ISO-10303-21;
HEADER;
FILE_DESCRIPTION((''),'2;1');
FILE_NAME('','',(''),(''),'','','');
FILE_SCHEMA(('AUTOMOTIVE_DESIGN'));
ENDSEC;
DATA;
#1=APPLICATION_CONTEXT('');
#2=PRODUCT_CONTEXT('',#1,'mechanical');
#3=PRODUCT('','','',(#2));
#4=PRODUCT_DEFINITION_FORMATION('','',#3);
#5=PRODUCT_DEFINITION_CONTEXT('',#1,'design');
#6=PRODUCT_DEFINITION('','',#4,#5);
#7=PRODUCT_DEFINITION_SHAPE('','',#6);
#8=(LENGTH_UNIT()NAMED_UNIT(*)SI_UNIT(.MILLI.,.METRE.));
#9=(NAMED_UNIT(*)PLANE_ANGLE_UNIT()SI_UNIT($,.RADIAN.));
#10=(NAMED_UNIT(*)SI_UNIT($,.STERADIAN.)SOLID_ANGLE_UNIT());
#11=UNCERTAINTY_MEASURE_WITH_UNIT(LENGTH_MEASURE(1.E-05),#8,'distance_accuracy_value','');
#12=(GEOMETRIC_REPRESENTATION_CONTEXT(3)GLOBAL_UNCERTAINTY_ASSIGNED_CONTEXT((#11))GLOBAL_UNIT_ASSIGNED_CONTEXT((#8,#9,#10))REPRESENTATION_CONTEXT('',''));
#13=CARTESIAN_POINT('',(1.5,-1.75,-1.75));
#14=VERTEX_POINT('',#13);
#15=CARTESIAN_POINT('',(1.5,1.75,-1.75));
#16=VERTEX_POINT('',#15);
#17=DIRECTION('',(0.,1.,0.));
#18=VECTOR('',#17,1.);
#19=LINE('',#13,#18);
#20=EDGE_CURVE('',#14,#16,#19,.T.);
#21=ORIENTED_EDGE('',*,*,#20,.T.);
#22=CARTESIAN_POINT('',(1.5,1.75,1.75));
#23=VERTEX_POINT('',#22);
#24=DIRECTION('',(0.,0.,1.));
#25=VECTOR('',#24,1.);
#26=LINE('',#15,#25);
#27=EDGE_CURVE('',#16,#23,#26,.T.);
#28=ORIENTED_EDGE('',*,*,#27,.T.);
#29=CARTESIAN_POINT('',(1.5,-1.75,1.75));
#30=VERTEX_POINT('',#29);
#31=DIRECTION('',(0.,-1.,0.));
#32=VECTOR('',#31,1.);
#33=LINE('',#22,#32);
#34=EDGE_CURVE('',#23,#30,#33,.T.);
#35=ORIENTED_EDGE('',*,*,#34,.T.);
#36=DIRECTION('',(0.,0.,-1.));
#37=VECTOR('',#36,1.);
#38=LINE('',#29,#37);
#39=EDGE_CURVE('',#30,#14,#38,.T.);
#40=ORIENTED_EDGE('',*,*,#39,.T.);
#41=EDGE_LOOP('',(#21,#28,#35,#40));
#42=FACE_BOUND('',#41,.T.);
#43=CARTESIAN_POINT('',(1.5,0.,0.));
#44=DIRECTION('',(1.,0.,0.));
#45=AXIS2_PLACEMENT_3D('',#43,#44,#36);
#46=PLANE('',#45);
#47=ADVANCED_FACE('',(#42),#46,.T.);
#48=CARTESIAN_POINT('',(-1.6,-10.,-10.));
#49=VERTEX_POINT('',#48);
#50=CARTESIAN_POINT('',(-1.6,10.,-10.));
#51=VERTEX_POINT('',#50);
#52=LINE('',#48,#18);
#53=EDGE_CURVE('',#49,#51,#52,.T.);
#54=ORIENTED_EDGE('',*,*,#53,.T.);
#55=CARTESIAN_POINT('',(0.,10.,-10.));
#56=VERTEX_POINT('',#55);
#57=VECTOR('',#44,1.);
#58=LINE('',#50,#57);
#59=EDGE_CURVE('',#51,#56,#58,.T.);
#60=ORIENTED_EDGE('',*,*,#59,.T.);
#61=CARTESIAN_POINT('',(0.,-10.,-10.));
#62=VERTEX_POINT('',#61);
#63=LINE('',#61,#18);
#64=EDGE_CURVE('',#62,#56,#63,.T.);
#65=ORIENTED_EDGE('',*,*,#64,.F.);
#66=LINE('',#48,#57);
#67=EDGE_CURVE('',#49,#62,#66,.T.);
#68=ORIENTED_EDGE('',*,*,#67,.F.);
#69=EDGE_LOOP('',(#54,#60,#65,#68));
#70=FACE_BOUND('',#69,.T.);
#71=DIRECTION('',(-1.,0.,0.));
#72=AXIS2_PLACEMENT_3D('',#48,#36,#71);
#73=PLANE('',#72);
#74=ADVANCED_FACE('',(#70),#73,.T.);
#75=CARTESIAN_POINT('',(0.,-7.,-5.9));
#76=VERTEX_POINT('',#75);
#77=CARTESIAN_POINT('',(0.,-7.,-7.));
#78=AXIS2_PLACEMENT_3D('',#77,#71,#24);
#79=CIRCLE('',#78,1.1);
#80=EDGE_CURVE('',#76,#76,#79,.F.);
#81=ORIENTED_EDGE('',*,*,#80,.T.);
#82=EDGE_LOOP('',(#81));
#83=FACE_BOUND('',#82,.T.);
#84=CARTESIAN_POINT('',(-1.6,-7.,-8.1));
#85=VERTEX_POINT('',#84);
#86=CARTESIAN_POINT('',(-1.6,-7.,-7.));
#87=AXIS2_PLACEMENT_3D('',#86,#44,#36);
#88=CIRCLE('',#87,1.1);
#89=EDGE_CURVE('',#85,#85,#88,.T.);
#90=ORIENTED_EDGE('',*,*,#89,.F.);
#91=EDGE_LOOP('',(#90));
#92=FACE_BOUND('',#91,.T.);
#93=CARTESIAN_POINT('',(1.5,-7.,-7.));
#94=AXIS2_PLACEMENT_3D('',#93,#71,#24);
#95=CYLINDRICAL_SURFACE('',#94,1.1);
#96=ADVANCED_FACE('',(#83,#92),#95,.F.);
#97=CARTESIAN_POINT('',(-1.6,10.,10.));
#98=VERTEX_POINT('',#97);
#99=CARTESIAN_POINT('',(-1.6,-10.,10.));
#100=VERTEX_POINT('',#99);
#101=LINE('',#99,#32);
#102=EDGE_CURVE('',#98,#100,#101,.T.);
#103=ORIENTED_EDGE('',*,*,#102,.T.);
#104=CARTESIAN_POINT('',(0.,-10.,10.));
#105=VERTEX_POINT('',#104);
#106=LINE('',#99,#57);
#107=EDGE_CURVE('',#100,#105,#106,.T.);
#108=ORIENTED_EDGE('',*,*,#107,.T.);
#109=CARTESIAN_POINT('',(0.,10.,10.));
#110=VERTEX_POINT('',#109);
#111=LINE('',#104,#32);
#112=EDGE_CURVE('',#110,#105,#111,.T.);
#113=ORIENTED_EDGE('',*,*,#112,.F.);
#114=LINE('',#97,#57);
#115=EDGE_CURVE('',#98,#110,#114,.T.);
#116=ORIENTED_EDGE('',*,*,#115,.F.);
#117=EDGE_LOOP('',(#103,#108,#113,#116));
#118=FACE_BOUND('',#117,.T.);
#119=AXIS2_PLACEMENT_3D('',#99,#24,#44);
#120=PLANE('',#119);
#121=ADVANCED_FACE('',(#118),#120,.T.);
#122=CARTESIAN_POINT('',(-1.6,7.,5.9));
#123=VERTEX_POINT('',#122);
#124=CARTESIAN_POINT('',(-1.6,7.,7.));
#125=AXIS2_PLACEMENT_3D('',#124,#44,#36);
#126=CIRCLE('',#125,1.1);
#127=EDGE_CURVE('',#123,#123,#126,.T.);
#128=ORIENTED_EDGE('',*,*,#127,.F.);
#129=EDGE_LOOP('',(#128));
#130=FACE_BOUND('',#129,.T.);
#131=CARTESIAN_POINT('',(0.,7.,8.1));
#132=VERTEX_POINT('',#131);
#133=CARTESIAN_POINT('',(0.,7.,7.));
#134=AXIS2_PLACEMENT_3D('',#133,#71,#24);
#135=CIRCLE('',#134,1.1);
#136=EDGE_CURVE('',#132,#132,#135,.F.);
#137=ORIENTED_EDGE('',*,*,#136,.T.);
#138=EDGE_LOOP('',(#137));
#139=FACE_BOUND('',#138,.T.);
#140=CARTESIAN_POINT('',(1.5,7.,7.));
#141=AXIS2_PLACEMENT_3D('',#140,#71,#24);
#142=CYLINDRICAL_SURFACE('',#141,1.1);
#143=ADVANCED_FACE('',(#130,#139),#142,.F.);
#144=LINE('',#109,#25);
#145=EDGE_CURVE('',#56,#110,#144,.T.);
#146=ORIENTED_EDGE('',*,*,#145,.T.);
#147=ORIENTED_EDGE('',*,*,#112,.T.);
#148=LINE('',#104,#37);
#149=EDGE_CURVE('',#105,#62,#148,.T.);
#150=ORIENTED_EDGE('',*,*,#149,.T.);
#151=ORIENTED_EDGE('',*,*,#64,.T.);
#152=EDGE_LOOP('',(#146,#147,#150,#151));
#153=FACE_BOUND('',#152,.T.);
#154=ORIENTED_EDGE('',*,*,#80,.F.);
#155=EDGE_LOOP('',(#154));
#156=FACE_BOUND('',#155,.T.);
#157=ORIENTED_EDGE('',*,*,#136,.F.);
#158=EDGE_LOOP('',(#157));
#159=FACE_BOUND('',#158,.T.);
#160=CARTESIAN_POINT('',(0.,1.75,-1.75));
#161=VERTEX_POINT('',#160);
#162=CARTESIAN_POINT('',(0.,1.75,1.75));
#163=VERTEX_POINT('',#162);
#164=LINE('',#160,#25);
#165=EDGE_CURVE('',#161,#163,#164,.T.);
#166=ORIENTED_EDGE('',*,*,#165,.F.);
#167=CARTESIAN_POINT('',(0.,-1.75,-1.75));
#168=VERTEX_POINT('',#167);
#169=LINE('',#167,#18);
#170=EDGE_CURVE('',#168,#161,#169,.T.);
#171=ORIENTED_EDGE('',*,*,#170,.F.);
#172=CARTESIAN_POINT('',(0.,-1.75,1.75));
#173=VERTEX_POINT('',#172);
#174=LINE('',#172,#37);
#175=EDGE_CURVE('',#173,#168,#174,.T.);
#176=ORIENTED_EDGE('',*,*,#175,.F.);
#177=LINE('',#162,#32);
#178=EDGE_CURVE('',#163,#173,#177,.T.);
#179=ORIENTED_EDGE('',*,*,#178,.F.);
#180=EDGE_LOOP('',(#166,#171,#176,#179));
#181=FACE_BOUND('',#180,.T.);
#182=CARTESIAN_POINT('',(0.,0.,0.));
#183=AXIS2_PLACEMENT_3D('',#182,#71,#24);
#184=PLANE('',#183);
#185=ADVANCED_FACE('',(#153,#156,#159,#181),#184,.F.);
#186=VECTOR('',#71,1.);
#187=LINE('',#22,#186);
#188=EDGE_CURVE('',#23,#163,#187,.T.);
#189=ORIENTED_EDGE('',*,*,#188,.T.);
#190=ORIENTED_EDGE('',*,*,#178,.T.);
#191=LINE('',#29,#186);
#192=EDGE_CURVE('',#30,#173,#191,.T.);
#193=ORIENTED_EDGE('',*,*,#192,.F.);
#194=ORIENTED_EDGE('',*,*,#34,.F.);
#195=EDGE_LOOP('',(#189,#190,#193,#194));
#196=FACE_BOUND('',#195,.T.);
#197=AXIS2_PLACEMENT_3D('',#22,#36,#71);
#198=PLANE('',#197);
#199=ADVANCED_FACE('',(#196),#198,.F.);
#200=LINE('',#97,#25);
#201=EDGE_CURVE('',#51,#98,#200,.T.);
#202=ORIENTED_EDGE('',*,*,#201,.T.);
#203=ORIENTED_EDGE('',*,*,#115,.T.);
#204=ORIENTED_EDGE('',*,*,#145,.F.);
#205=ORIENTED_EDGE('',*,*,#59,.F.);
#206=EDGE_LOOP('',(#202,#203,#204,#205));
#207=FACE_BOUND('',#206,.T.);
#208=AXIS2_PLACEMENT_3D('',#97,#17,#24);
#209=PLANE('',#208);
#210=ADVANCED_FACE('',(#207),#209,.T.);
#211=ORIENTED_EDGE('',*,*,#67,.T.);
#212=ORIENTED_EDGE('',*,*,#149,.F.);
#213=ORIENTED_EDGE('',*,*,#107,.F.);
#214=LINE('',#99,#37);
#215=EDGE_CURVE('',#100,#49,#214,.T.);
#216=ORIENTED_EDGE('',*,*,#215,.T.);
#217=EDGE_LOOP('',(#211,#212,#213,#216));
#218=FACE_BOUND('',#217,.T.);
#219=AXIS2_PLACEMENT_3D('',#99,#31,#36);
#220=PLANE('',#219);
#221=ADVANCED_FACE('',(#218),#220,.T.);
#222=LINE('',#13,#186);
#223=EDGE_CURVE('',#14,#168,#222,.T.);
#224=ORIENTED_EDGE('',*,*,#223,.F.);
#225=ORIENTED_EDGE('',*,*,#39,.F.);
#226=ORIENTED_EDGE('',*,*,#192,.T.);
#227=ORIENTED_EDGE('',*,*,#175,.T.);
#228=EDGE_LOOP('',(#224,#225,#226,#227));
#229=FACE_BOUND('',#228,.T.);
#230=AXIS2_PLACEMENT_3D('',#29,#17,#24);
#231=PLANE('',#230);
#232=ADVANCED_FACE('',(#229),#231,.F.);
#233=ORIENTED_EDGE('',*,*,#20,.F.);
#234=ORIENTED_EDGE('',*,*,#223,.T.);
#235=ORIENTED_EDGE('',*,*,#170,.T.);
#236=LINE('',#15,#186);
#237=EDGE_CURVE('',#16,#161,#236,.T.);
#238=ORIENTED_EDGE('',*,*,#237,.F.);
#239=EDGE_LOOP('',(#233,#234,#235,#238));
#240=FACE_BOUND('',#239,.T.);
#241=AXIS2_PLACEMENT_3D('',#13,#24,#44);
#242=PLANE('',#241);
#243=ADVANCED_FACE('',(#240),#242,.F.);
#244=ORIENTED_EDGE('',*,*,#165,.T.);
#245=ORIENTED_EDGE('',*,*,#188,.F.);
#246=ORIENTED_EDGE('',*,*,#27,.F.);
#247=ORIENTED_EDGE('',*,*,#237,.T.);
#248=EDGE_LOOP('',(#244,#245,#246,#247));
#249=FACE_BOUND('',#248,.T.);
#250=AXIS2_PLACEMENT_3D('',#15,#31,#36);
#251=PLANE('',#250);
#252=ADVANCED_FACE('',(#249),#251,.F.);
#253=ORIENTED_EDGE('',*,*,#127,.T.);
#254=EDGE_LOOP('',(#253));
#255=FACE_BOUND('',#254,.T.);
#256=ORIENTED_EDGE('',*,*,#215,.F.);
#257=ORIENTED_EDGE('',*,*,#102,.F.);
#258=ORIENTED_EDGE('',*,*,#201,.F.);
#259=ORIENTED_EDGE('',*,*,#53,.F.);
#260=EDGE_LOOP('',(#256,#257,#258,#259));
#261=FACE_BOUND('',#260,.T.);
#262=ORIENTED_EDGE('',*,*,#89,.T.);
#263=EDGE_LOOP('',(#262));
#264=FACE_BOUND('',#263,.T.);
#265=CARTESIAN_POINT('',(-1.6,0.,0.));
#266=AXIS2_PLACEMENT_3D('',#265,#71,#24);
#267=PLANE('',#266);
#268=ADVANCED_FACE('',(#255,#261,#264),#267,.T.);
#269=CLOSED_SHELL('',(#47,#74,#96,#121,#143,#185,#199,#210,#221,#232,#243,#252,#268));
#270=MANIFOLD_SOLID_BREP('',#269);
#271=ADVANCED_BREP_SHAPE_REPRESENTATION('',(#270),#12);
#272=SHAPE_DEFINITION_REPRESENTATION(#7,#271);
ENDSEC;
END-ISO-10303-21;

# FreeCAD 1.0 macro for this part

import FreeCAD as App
import Part
import Sketcher
Q = App.Units.Quantity

doc = App.newDocument("Part")
body = doc.addObject("PartDesign::Body", "Body")

sketch1 = body.newObject("Sketcher::SketchObject", "Sketch")
sketch1.AttachmentSupport = (doc.getObject("YZ_Plane"), [""])
sketch1.MapMode = "FlatFace"
sketch1.addGeometry(Part.LineSegment(App.Vector(10, 10, 0), App.Vector(-10, 10, 0)), False)
sketch1.addGeometry(Part.LineSegment(App.Vector(-10, 10, 0), App.Vector(-10, -10, 0)), False)
sketch1.addGeometry(Part.LineSegment(App.Vector(-10, -10, 0), App.Vector(10, -10, 0)), False)
sketch1.addGeometry(Part.LineSegment(App.Vector(10, -10, 0), App.Vector(10, 10, 0)), False)
sketch1.addConstraint(Sketcher.Constraint("Coincident", 0, 2, 1, 1))
sketch1.addConstraint(Sketcher.Constraint("Coincident", 1, 2, 2, 1))
sketch1.addConstraint(Sketcher.Constraint("Coincident", 2, 2, 3, 1))
sketch1.addConstraint(Sketcher.Constraint("Coincident", 3, 2, 0, 1))
sketch1.addConstraint(Sketcher.Constraint("Horizontal", 0))
sketch1.addConstraint(Sketcher.Constraint("Vertical", 1))
sketch1.addConstraint(Sketcher.Constraint("Horizontal", 2))
sketch1.addConstraint(Sketcher.Constraint("Vertical", 3))
sketch1.addConstraint(Sketcher.Constraint("Symmetric", 0, 2, 2, 2, -1, 1))
sketch1.addConstraint(Sketcher.Constraint("Equal", 2, 1))
sketch1.addConstraint(Sketcher.Constraint("DistanceX", 0, 2, 0, 1, Q("20 mm")))
pad1 = body.newObject("PartDesign::Pad", "Pad")
pad1.Profile = sketch1
pad1.Length = 1.6
pad1.Reversed = True

sketch2 = body.newObject("Sketcher::SketchObject", "Sketch001")
sketch2.AttachmentSupport = (doc.getObject("YZ_Plane"), [""])
sketch2.MapMode = "FlatFace"
sketch2.addGeometry(Part.LineSegment(App.Vector(1.8, 1.8, 0), App.Vector(-1.8, 1.8, 0)), False)
sketch2.addGeometry(Part.LineSegment(App.Vector(-1.8, 1.8, 0), App.Vector(-1.8, -1.8, 0)), False)
sketch2.addGeometry(Part.LineSegment(App.Vector(-1.8, -1.8, 0), App.Vector(1.8, -1.8, 0)), False)
sketch2.addGeometry(Part.LineSegment(App.Vector(1.8, -1.8, 0), App.Vector(1.8, 1.8, 0)), False)
sketch2.addConstraint(Sketcher.Constraint("Coincident", 0, 2, 1, 1))
sketch2.addConstraint(Sketcher.Constraint("Coincident", 1, 2, 2, 1))
sketch2.addConstraint(Sketcher.Constraint("Coincident", 2, 2, 3, 1))
sketch2.addConstraint(Sketcher.Constraint("Coincident", 3, 2, 0, 1))
sketch2.addConstraint(Sketcher.Constraint("Horizontal", 0))
sketch2.addConstraint(Sketcher.Constraint("Vertical", 1))
sketch2.addConstraint(Sketcher.Constraint("Horizontal", 2))
sketch2.addConstraint(Sketcher.Constraint("Vertical", 3))
sketch2.addConstraint(Sketcher.Constraint("Symmetric", 0, 2, 2, 2, -1, 1))
sketch2.addConstraint(Sketcher.Constraint("Equal", 2, 1))
sketch2.addConstraint(Sketcher.Constraint("DistanceX", 0, 2, 0, 1, Q("3.5 mm")))
pad2 = body.newObject("PartDesign::Pad", "Pad001")
pad2.Profile = sketch2
pad2.Length = 1.5

sketch3 = body.newObject("Sketcher::SketchObject", "Sketch002")
sketch3.AttachmentSupport = (doc.getObject("YZ_Plane"), [""])
sketch3.MapMode = "FlatFace"
sketch3.addGeometry(Part.Circle(App.Vector(-7, -7, 0), App.Vector(0, 0, 1), 1.1), False)
sketch3.addGeometry(Part.Circle(App.Vector(7, 7, 0), App.Vector(0, 0, 1), 1.1), False)
sketch3.addConstraint(Sketcher.Constraint("Equal", 0, 1))
sketch3.addConstraint(Sketcher.Constraint("Symmetric", 0, 3, 1, 3, -1, 1))
sketch3.addConstraint(Sketcher.Constraint("Diameter", 0, Q("2.2 mm")))
sketch3.addConstraint(Sketcher.Constraint("DistanceX", 0, 3, -1, 1, Q("7 mm")))
sketch3.addConstraint(Sketcher.Constraint("DistanceY", 0, 3, -1, 1, Q("7 mm")))
pocket1 = body.newObject("PartDesign::Pocket", "Pocket")
pocket1.Profile = sketch3
pocket1.Type = "ThroughAll"
pocket1.Midplane = True

doc.recompute()
